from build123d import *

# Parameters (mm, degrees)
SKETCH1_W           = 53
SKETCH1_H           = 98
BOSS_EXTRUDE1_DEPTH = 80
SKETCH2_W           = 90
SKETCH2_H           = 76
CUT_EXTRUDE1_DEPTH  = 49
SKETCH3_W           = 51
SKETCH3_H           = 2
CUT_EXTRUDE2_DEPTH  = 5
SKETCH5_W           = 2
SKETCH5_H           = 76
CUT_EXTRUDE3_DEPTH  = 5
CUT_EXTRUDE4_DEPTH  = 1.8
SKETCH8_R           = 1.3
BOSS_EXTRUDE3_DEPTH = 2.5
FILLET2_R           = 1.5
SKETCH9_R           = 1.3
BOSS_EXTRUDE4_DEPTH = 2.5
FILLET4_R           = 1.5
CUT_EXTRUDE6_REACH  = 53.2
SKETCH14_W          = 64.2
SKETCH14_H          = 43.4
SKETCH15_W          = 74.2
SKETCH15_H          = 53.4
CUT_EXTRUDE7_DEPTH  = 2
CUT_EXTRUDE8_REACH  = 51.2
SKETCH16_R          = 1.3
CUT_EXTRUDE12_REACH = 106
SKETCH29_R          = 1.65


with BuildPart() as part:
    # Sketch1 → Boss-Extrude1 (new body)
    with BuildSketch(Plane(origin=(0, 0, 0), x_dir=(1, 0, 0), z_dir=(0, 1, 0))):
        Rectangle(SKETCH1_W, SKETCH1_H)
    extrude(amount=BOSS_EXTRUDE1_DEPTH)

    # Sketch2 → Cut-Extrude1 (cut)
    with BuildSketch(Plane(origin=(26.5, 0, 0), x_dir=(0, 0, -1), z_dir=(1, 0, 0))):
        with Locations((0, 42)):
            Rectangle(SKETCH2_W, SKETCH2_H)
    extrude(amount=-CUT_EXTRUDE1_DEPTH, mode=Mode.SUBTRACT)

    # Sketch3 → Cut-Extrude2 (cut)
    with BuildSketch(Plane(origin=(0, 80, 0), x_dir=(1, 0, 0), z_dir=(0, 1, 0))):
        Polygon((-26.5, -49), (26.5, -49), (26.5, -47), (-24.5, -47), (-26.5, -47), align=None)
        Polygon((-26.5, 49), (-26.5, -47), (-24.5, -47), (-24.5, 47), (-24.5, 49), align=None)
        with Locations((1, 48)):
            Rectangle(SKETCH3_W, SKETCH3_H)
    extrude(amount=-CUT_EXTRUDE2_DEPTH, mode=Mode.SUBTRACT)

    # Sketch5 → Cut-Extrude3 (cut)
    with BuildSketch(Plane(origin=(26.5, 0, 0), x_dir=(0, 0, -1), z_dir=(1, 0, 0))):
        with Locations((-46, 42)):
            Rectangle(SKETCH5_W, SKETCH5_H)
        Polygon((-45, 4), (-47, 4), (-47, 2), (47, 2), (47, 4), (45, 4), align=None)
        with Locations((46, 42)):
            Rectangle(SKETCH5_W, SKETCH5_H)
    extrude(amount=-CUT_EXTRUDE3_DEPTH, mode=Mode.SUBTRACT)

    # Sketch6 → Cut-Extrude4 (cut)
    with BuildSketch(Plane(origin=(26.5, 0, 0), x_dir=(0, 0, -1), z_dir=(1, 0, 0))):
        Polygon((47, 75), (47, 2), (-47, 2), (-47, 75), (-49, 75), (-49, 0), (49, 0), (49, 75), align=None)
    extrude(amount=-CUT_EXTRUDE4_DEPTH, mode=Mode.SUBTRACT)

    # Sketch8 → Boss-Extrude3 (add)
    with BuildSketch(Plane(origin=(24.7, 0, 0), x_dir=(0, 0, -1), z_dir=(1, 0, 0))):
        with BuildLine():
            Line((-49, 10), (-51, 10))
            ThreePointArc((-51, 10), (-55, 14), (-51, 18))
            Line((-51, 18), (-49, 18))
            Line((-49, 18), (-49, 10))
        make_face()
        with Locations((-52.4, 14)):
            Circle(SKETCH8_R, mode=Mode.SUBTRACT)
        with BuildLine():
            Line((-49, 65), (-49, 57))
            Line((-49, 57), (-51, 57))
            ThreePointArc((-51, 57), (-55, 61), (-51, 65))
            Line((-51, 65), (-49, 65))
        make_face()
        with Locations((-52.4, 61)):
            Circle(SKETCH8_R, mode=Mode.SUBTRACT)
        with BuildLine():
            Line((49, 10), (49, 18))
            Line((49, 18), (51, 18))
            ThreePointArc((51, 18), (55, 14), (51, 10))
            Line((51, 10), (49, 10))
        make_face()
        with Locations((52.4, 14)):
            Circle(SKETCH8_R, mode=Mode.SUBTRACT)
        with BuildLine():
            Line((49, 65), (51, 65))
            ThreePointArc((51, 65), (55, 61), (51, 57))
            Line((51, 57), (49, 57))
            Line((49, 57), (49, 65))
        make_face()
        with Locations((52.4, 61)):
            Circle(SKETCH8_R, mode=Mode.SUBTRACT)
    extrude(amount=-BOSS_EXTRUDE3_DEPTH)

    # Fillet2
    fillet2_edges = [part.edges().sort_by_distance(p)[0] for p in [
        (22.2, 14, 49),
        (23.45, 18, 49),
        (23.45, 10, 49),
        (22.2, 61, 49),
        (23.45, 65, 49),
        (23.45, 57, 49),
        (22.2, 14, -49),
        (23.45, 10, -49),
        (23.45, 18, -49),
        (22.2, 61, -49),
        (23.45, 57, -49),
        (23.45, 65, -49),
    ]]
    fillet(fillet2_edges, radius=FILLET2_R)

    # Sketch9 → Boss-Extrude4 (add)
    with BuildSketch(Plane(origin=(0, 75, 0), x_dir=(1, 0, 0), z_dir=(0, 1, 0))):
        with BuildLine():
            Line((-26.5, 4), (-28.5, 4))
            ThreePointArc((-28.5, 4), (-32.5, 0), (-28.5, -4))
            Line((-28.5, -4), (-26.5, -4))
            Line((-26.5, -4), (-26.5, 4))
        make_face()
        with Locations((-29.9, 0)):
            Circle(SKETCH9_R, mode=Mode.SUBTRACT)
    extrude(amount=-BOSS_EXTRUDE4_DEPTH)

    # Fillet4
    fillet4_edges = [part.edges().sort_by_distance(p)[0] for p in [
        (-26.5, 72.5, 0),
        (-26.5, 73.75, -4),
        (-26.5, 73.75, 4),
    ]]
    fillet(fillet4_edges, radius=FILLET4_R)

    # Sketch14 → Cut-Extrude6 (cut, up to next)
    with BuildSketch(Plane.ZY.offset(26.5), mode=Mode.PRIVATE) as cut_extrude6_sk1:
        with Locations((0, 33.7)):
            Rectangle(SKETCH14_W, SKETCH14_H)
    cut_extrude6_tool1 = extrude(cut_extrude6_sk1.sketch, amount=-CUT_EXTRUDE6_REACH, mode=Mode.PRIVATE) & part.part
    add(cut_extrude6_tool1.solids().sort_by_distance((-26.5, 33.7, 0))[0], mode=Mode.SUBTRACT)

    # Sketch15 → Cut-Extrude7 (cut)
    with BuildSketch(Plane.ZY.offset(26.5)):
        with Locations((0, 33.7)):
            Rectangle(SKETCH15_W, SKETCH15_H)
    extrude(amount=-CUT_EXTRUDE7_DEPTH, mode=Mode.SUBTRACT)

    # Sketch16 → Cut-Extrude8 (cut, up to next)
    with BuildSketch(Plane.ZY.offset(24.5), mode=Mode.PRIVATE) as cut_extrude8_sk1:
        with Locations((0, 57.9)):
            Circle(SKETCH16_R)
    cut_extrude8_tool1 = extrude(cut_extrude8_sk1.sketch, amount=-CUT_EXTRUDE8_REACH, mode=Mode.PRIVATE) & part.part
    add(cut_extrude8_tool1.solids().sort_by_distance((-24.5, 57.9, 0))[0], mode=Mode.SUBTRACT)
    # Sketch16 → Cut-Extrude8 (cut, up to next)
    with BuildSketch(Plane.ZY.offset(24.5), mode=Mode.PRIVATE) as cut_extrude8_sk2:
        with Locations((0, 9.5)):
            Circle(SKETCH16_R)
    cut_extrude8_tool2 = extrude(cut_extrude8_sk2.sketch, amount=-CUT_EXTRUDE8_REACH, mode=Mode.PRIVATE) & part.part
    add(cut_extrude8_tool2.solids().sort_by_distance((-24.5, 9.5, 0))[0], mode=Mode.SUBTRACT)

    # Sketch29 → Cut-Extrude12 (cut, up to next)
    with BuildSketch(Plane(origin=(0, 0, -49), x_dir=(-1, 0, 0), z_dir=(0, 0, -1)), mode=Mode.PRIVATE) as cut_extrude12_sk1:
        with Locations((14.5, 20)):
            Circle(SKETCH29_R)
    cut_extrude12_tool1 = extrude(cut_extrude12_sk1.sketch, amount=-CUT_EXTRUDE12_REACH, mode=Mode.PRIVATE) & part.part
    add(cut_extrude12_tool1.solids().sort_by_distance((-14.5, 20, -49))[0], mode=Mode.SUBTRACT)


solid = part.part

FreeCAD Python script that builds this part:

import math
import FreeCAD as App
import Part
import Sketcher
from FreeCAD import Vector
Q = App.Units.Quantity


def edges_at(feature, points):
    """Names of the edges that pass closest to the given points."""
    edges = feature.Shape.Edges
    near = lambda p: min(range(len(edges)), key=lambda i: edges[i].distToShape(Part.Vertex(*p))[0])
    return sorted({f"Edge{near(p) + 1}" for p in points})

doc = App.newDocument("Part")
params = doc.addObject("Spreadsheet::Sheet", "Params")
for row, (alias, value) in enumerate([
    ("sketch1_width", "53 mm"),
    ("sketch1_height", "98 mm"),
    ("pad1_length", "80 mm"),
    ("sketch2_width", "76 mm"),
    ("sketch2_height", "90 mm"),
    ("pocket1_length", "49 mm"),
    ("sketch3_width", "53 mm"),
    ("sketch3_width2", "51 mm"),
    ("sketch3_height", "2 mm"),
    ("sketch3_height2", "94 mm"),
    ("pocket2_length", "5 mm"),
    ("sketch4_width", "78 mm"),
    ("sketch4_width2", "76 mm"),
    ("sketch4_height", "94 mm"),
    ("sketch4_height2", "2 mm"),
    ("pocket3_length", "5 mm"),
    ("sketch5_width", "73 mm"),
    ("sketch5_width2", "75 mm"),
    ("sketch5_height", "94 mm"),
    ("sketch5_height2", "2 mm"),
    ("pocket4_length", "1.8 mm"),
    ("sketch6_radius", "4 mm"),
    ("sketch6_diameter", "2.6 mm"),
    ("sketch6_height", "2 mm"),
    ("pad2_length", "2.5 mm"),
    ("fillet_radius", "1.5 mm"),
    ("sketch7_radius", "4 mm"),
    ("sketch7_diameter", "2.6 mm"),
    ("sketch7_width", "2 mm"),
    ("pad3_length", "2.5 mm"),
    ("fillet2_radius", "1.5 mm"),
    ("sketch8_width", "43.4 mm"),
    ("sketch8_height", "64.2 mm"),
    ("sketch9_width", "53.4 mm"),
    ("sketch9_height", "74.2 mm"),
    ("pocket6_length", "2 mm"),
    ("sketch10_diameter", "2.6 mm"),
    ("sketch11_diameter", "2.6 mm"),
    ("sketch12_diameter", "3.3 mm"),
], start=1):
    params.set(f"A{row}", alias)
    params.set(f"B{row}", "=" + value)
    params.setAlias(f"B{row}", alias)

body = doc.addObject("PartDesign::Body", "Body")

sketch1 = doc.addObject("Sketcher::SketchObject", "Sketch")
body.addObject(sketch1)
sketch1.AttachmentSupport = (doc.XZ_Plane, [""])
sketch1.MapMode = "FlatFace"
sketch1.addGeometry(Part.LineSegment(Vector(-26, -49, 0), Vector(-26, 49, 0)), False)
sketch1.addGeometry(Part.LineSegment(Vector(-26, 49, 0), Vector(26, 49, 0)), False)
sketch1.addGeometry(Part.LineSegment(Vector(26, 49, 0), Vector(26, -49, 0)), False)
sketch1.addGeometry(Part.LineSegment(Vector(26, -49, 0), Vector(-26, -49, 0)), False)
sketch1.addConstraint(Sketcher.Constraint("Coincident", 0, 2, 1, 1))
sketch1.addConstraint(Sketcher.Constraint("Coincident", 1, 2, 2, 1))
sketch1.addConstraint(Sketcher.Constraint("Coincident", 2, 2, 3, 1))
sketch1.addConstraint(Sketcher.Constraint("Coincident", 3, 2, 0, 1))
sketch1.addConstraint(Sketcher.Constraint("Vertical", 0))
sketch1.addConstraint(Sketcher.Constraint("Horizontal", 1))
sketch1.addConstraint(Sketcher.Constraint("Vertical", 2))
sketch1.addConstraint(Sketcher.Constraint("Horizontal", 3))
sketch1.addConstraint(Sketcher.Constraint("Symmetric", 0, 2, 2, 2, -1, 1))
sketch1.addConstraint(Sketcher.Constraint("DistanceX", 1, 1, 1, 2, Q("53 mm")))
sketch1.addConstraint(Sketcher.Constraint("DistanceY", 0, 1, 0, 2, Q("98 mm")))
sketch1.setExpression("Constraints[9]", "Params.sketch1_width")
sketch1.setExpression("Constraints[10]", "Params.sketch1_height")
pad1 = doc.addObject("PartDesign::Pad", "Pad")
body.addObject(pad1)
pad1.Profile = sketch1
pad1.setExpression("Length", "Params.pad1_length")
pad1.Reversed = True

sketch2 = doc.addObject("Sketcher::SketchObject", "Sketch001")
body.addObject(sketch2)
sketch2.AttachmentSupport = (doc.YZ_Plane, [""])
sketch2.MapMode = "FlatFace"
sketch2.AttachmentOffset = App.Placement(Vector(0, 0, 26.5), App.Rotation())
sketch2.addGeometry(Part.LineSegment(Vector(80, 45, 0), Vector(4, 45, 0)), False)
sketch2.addGeometry(Part.LineSegment(Vector(4, 45, 0), Vector(4, -45, 0)), False)
sketch2.addGeometry(Part.LineSegment(Vector(4, -45, 0), Vector(80, -45, 0)), False)
sketch2.addGeometry(Part.LineSegment(Vector(80, -45, 0), Vector(80, 45, 0)), False)
sketch2.addConstraint(Sketcher.Constraint("Coincident", 0, 2, 1, 1))
sketch2.addConstraint(Sketcher.Constraint("Coincident", 1, 2, 2, 1))
sketch2.addConstraint(Sketcher.Constraint("Coincident", 2, 2, 3, 1))
sketch2.addConstraint(Sketcher.Constraint("Coincident", 3, 2, 0, 1))
sketch2.addConstraint(Sketcher.Constraint("Horizontal", 0))
sketch2.addConstraint(Sketcher.Constraint("Vertical", 1))
sketch2.addConstraint(Sketcher.Constraint("Horizontal", 2))
sketch2.addConstraint(Sketcher.Constraint("Vertical", 3))
sketch2.addConstraint(Sketcher.Constraint("DistanceX", 0, 2, 0, 1, Q("76 mm")))
sketch2.addConstraint(Sketcher.Constraint("DistanceY", 1, 2, 1, 1, Q("90 mm")))
sketch2.addConstraint(Sketcher.Constraint("DistanceX", -1, 1, 0, 2, Q("4 mm")))
sketch2.addConstraint(Sketcher.Constraint("DistanceY", -1, 1, 0, 2, Q("45 mm")))
sketch2.setExpression("Constraints[8]", "Params.sketch2_width")
sketch2.setExpression("Constraints[9]", "Params.sketch2_height")
pocket1 = doc.addObject("PartDesign::Pocket", "Pocket")
body.addObject(pocket1)
pocket1.Profile = sketch2
pocket1.setExpression("Length", "Params.pocket1_length")

sketch3 = doc.addObject("Sketcher::SketchObject", "Sketch002")
body.addObject(sketch3)
sketch3.AttachmentSupport = (doc.XZ_Plane, [""])
sketch3.MapMode = "FlatFace"
sketch3.AttachmentOffset = App.Placement(Vector(0, 0, -80), App.Rotation())
sketch3.addGeometry(Part.LineSegment(Vector(-26.5, 49, 0), Vector(26.5, 49, 0)), False)
sketch3.addGeometry(Part.LineSegment(Vector(26.5, 49, 0), Vector(26.5, 47, 0)), False)
sketch3.addGeometry(Part.LineSegment(Vector(26.5, 47, 0), Vector(-24.5, 47, 0)), False)
sketch3.addGeometry(Part.LineSegment(Vector(-24.5, 47, 0), Vector(-24.5, -47, 0)), False)
sketch3.addGeometry(Part.LineSegment(Vector(-24.5, -47, 0), Vector(26.5, -47, 0)), False)
sketch3.addGeometry(Part.LineSegment(Vector(26.5, -47, 0), Vector(26.5, -49, 0)), False)
sketch3.addGeometry(Part.LineSegment(Vector(26.5, -49, 0), Vector(-26.5, -49, 0)), False)
sketch3.addGeometry(Part.LineSegment(Vector(-26.5, -49, 0), Vector(-26.5, 49, 0)), False)
sketch3.addConstraint(Sketcher.Constraint("Coincident", 0, 2, 1, 1))
sketch3.addConstraint(Sketcher.Constraint("Coincident", 1, 2, 2, 1))
sketch3.addConstraint(Sketcher.Constraint("Coincident", 2, 2, 3, 1))
sketch3.addConstraint(Sketcher.Constraint("Coincident", 3, 2, 4, 1))
sketch3.addConstraint(Sketcher.Constraint("Coincident", 4, 2, 5, 1))
sketch3.addConstraint(Sketcher.Constraint("Coincident", 5, 2, 6, 1))
sketch3.addConstraint(Sketcher.Constraint("Coincident", 6, 2, 7, 1))
sketch3.addConstraint(Sketcher.Constraint("Coincident", 7, 2, 0, 1))
sketch3.addConstraint(Sketcher.Constraint("Horizontal", 0))
sketch3.addConstraint(Sketcher.Constraint("Vertical", 1))
sketch3.addConstraint(Sketcher.Constraint("Horizontal", 2))
sketch3.addConstraint(Sketcher.Constraint("Vertical", 3))
sketch3.addConstraint(Sketcher.Constraint("Horizontal", 4))
sketch3.addConstraint(Sketcher.Constraint("Vertical", 5))
sketch3.addConstraint(Sketcher.Constraint("Horizontal", 6))
sketch3.addConstraint(Sketcher.Constraint("Vertical", 7))
sketch3.addConstraint(Sketcher.Constraint("Symmetric", 0, 2, 6, 2, -1, 1))
sketch3.addConstraint(Sketcher.Constraint("Symmetric", 1, 2, 4, 2, -1))
sketch3.addConstraint(Sketcher.Constraint("DistanceX", 0, 1, 0, 2, Q("53 mm")))
sketch3.addConstraint(Sketcher.Constraint("DistanceX", 2, 2, 2, 1, Q("51 mm")))
sketch3.addConstraint(Sketcher.Constraint("DistanceY", 1, 2, 1, 1, Q("2 mm")))
sketch3.addConstraint(Sketcher.Constraint("DistanceY", 3, 2, 3, 1, Q("94 mm")))
sketch3.setExpression("Constraints[18]", "Params.sketch3_width")
sketch3.setExpression("Constraints[19]", "Params.sketch3_width2")
sketch3.setExpression("Constraints[20]", "Params.sketch3_height")
sketch3.setExpression("Constraints[21]", "Params.sketch3_height2")
pocket2 = doc.addObject("PartDesign::Pocket", "Pocket001")
body.addObject(pocket2)
pocket2.Profile = sketch3
pocket2.setExpression("Length", "Params.pocket2_length")
pocket2.Reversed = True

sketch4 = doc.addObject("Sketcher::SketchObject", "Sketch003")
body.addObject(sketch4)
sketch4.AttachmentSupport = (doc.YZ_Plane, [""])
sketch4.MapMode = "FlatFace"
sketch4.AttachmentOffset = App.Placement(Vector(0, 0, 26.5), App.Rotation())
sketch4.addGeometry(Part.LineSegment(Vector(80, 47, 0), Vector(2, 47, 0)), False)
sketch4.addGeometry(Part.LineSegment(Vector(2, 47, 0), Vector(2, -47, 0)), False)
sketch4.addGeometry(Part.LineSegment(Vector(2, -47, 0), Vector(80, -47, 0)), False)
sketch4.addGeometry(Part.LineSegment(Vector(80, -47, 0), Vector(80, -45, 0)), False)
sketch4.addGeometry(Part.LineSegment(Vector(80, -45, 0), Vector(4, -45, 0)), False)
sketch4.addGeometry(Part.LineSegment(Vector(4, -45, 0), Vector(4, 45, 0)), False)
sketch4.addGeometry(Part.LineSegment(Vector(4, 45, 0), Vector(80, 45, 0)), False)
sketch4.addGeometry(Part.LineSegment(Vector(80, 45, 0), Vector(80, 47, 0)), False)
sketch4.addConstraint(Sketcher.Constraint("Coincident", 0, 2, 1, 1))
sketch4.addConstraint(Sketcher.Constraint("Coincident", 1, 2, 2, 1))
sketch4.addConstraint(Sketcher.Constraint("Coincident", 2, 2, 3, 1))
sketch4.addConstraint(Sketcher.Constraint("Coincident", 3, 2, 4, 1))
sketch4.addConstraint(Sketcher.Constraint("Coincident", 4, 2, 5, 1))
sketch4.addConstraint(Sketcher.Constraint("Coincident", 5, 2, 6, 1))
sketch4.addConstraint(Sketcher.Constraint("Coincident", 6, 2, 7, 1))
sketch4.addConstraint(Sketcher.Constraint("Coincident", 7, 2, 0, 1))
sketch4.addConstraint(Sketcher.Constraint("Horizontal", 0))
sketch4.addConstraint(Sketcher.Constraint("Vertical", 1))
sketch4.addConstraint(Sketcher.Constraint("Horizontal", 2))
sketch4.addConstraint(Sketcher.Constraint("Vertical", 3))
sketch4.addConstraint(Sketcher.Constraint("Horizontal", 4))
sketch4.addConstraint(Sketcher.Constraint("Vertical", 5))
sketch4.addConstraint(Sketcher.Constraint("Horizontal", 6))
sketch4.addConstraint(Sketcher.Constraint("Vertical", 7))
sketch4.addConstraint(Sketcher.Constraint("Symmetric", 3, 2, 6, 2, -1))
sketch4.addConstraint(Sketcher.Constraint("Equal", 3, 7))
sketch4.addConstraint(Sketcher.Constraint("DistanceX", 0, 2, 0, 1, Q("78 mm")))
sketch4.addConstraint(Sketcher.Constraint("DistanceX", 4, 2, 4, 1, Q("76 mm")))
sketch4.addConstraint(Sketcher.Constraint("DistanceY", 1, 2, 1, 1, Q("94 mm")))
sketch4.addConstraint(Sketcher.Constraint("DistanceY", 3, 1, 3, 2, Q("2 mm")))
sketch4.addConstraint(Sketcher.Constraint("DistanceX", -1, 1, 0, 2, Q("2 mm")))
sketch4.setExpression("Constraints[18]", "Params.sketch4_width")
sketch4.setExpression("Constraints[19]", "Params.sketch4_width2")
sketch4.setExpression("Constraints[20]", "Params.sketch4_height")
sketch4.setExpression("Constraints[21]", "Params.sketch4_height2")
pocket3 = doc.addObject("PartDesign::Pocket", "Pocket002")
body.addObject(pocket3)
pocket3.Profile = sketch4
pocket3.setExpression("Length", "Params.pocket3_length")

sketch5 = doc.addObject("Sketcher::SketchObject", "Sketch004")
body.addObject(sketch5)
sketch5.AttachmentSupport = (doc.YZ_Plane, [""])
sketch5.MapMode = "FlatFace"
sketch5.AttachmentOffset = App.Placement(Vector(0, 0, 26.5), App.Rotation())
sketch5.addGeometry(Part.LineSegment(Vector(75, -47, 0), Vector(2, -47, 0)), False)
sketch5.addGeometry(Part.LineSegment(Vector(2, -47, 0), Vector(2, 47, 0)), False)
sketch5.addGeometry(Part.LineSegment(Vector(2, 47, 0), Vector(75, 47, 0)), False)
sketch5.addGeometry(Part.LineSegment(Vector(75, 47, 0), Vector(75, 49, 0)), False)
sketch5.addGeometry(Part.LineSegment(Vector(75, 49, 0), Vector(0, 49, 0)), False)
sketch5.addGeometry(Part.LineSegment(Vector(0, 49, 0), Vector(0, -49, 0)), False)
sketch5.addGeometry(Part.LineSegment(Vector(0, -49, 0), Vector(75, -49, 0)), False)
sketch5.addGeometry(Part.LineSegment(Vector(75, -49, 0), Vector(75, -47, 0)), False)
sketch5.addConstraint(Sketcher.Constraint("Coincident", 0, 2, 1, 1))
sketch5.addConstraint(Sketcher.Constraint("Coincident", 1, 2, 2, 1))
sketch5.addConstraint(Sketcher.Constraint("Coincident", 2, 2, 3, 1))
sketch5.addConstraint(Sketcher.Constraint("Coincident", 3, 2, 4, 1))
sketch5.addConstraint(Sketcher.Constraint("Coincident", 4, 2, 5, 1))
sketch5.addConstraint(Sketcher.Constraint("Coincident", 5, 2, 6, 1))
sketch5.addConstraint(Sketcher.Constraint("Coincident", 6, 2, 7, 1))
sketch5.addConstraint(Sketcher.Constraint("Coincident", 7, 2, 0, 1))
sketch5.addConstraint(Sketcher.Constraint("Horizontal", 0))
sketch5.addConstraint(Sketcher.Constraint("Vertical", 1))
sketch5.addConstraint(Sketcher.Constraint("Horizontal", 2))
sketch5.addConstraint(Sketcher.Constraint("Vertical", 3))
sketch5.addConstraint(Sketcher.Constraint("Horizontal", 4))
sketch5.addConstraint(Sketcher.Constraint("Vertical", 5))
sketch5.addConstraint(Sketcher.Constraint("Horizontal", 6))
sketch5.addConstraint(Sketcher.Constraint("Vertical", 7))
sketch5.addConstraint(Sketcher.Constraint("Symmetric", 4, 2, 5, 2, -1, 1))
sketch5.addConstraint(Sketcher.Constraint("Symmetric", 2, 2, 7, 2, -1))
sketch5.addConstraint(Sketcher.Constraint("DistanceX", 0, 2, 0, 1, Q("73 mm")))
sketch5.addConstraint(Sketcher.Constraint("DistanceX", 4, 2, 4, 1, Q("75 mm")))
sketch5.addConstraint(Sketcher.Constraint("DistanceY", 1, 1, 1, 2, Q("94 mm")))
sketch5.addConstraint(Sketcher.Constraint("DistanceY", 3, 1, 3, 2, Q("2 mm")))
sketch5.setExpression("Constraints[18]", "Params.sketch5_width")
sketch5.setExpression("Constraints[19]", "Params.sketch5_width2")
sketch5.setExpression("Constraints[20]", "Params.sketch5_height")
sketch5.setExpression("Constraints[21]", "Params.sketch5_height2")
pocket4 = doc.addObject("PartDesign::Pocket", "Pocket003")
body.addObject(pocket4)
pocket4.Profile = sketch5
pocket4.setExpression("Length", "Params.pocket4_length")

sketch6 = doc.addObject("Sketcher::SketchObject", "Sketch005")
body.addObject(sketch6)
sketch6.AttachmentSupport = (doc.YZ_Plane, [""])
sketch6.MapMode = "FlatFace"
sketch6.AttachmentOffset = App.Placement(Vector(0, 0, 24.7), App.Rotation())
sketch6.addGeometry(Part.LineSegment(Vector(10, 51, 0), Vector(10, 49, 0)), False)
sketch6.addGeometry(Part.LineSegment(Vector(10, 49, 0), Vector(18, 49, 0)), False)
sketch6.addGeometry(Part.LineSegment(Vector(18, 49, 0), Vector(18, 51, 0)), False)
sketch6.addGeometry(Part.ArcOfCircle(Part.Circle(Vector(14, 51, 0), Vector(0, 0, 1), 4), math.radians(0), math.radians(180)), False)
sketch6.addGeometry(Part.Circle(Vector(14, 52.4, 0), Vector(0, 0, 1), 1.3), False)
sketch6.addGeometry(Part.LineSegment(Vector(57, 49, 0), Vector(65, 49, 0)), False)
sketch6.addGeometry(Part.LineSegment(Vector(65, 49, 0), Vector(65, 51, 0)), False)
sketch6.addGeometry(Part.ArcOfCircle(Part.Circle(Vector(61, 51, 0), Vector(0, 0, 1), 4), math.radians(0), math.radians(180)), False)
sketch6.addGeometry(Part.LineSegment(Vector(57, 51, 0), Vector(57, 49, 0)), False)
sketch6.addGeometry(Part.Circle(Vector(61, 52.4, 0), Vector(0, 0, 1), 1.3), False)
sketch6.addGeometry(Part.LineSegment(Vector(18, -49, 0), Vector(10, -49, 0)), False)
sketch6.addGeometry(Part.LineSegment(Vector(10, -49, 0), Vector(10, -51, 0)), False)
sketch6.addGeometry(Part.ArcOfCircle(Part.Circle(Vector(14, -51, 0), Vector(0, 0, 1), 4), math.radians(180), math.radians(360)), False)
sketch6.addGeometry(Part.LineSegment(Vector(18, -51, 0), Vector(18, -49, 0)), False)
sketch6.addGeometry(Part.Circle(Vector(14, -52.4, 0), Vector(0, 0, 1), 1.3), False)
sketch6.addGeometry(Part.LineSegment(Vector(65, -51, 0), Vector(65, -49, 0)), False)
sketch6.addGeometry(Part.LineSegment(Vector(65, -49, 0), Vector(57, -49, 0)), False)
sketch6.addGeometry(Part.LineSegment(Vector(57, -49, 0), Vector(57, -51, 0)), False)
sketch6.addGeometry(Part.ArcOfCircle(Part.Circle(Vector(61, -51, 0), Vector(0, 0, 1), 4), math.radians(180), math.radians(360)), False)
sketch6.addGeometry(Part.Circle(Vector(61, -52.4, 0), Vector(0, 0, 1), 1.3), False)
sketch6.addConstraint(Sketcher.Constraint("Coincident", 0, 2, 1, 1))
sketch6.addConstraint(Sketcher.Constraint("Coincident", 1, 2, 2, 1))
sketch6.addConstraint(Sketcher.Constraint("Tangent", 2, 2, 3, 1))
sketch6.addConstraint(Sketcher.Constraint("Tangent", 3, 2, 0, 1))
sketch6.addConstraint(Sketcher.Constraint("Coincident", 5, 2, 6, 1))
sketch6.addConstraint(Sketcher.Constraint("Tangent", 6, 2, 7, 1))
sketch6.addConstraint(Sketcher.Constraint("Tangent", 7, 2, 8, 1))
sketch6.addConstraint(Sketcher.Constraint("Coincident", 8, 2, 5, 1))
sketch6.addConstraint(Sketcher.Constraint("Coincident", 10, 2, 11, 1))
sketch6.addConstraint(Sketcher.Constraint("Tangent", 11, 2, 12, 1))
sketch6.addConstraint(Sketcher.Constraint("Tangent", 12, 2, 13, 1))
sketch6.addConstraint(Sketcher.Constraint("Coincident", 13, 2, 10, 1))
sketch6.addConstraint(Sketcher.Constraint("Coincident", 15, 2, 16, 1))
sketch6.addConstraint(Sketcher.Constraint("Coincident", 16, 2, 17, 1))
sketch6.addConstraint(Sketcher.Constraint("Tangent", 17, 2, 18, 1))
sketch6.addConstraint(Sketcher.Constraint("Tangent", 18, 2, 15, 1))
sketch6.addConstraint(Sketcher.Constraint("Vertical", 0))
sketch6.addConstraint(Sketcher.Constraint("Horizontal", 1))
sketch6.addConstraint(Sketcher.Constraint("Vertical", 2))
sketch6.addConstraint(Sketcher.Constraint("Horizontal", 5))
sketch6.addConstraint(Sketcher.Constraint("Vertical", 6))
sketch6.addConstraint(Sketcher.Constraint("Vertical", 8))
sketch6.addConstraint(Sketcher.Constraint("Horizontal", 10))
sketch6.addConstraint(Sketcher.Constraint("Vertical", 11))
sketch6.addConstraint(Sketcher.Constraint("Vertical", 13))
sketch6.addConstraint(Sketcher.Constraint("Vertical", 15))
sketch6.addConstraint(Sketcher.Constraint("Horizontal", 16))
sketch6.addConstraint(Sketcher.Constraint("Vertical", 17))
sketch6.addConstraint(Sketcher.Constraint("Equal", 3, 7))
sketch6.addConstraint(Sketcher.Constraint("Equal", 4, 9))
sketch6.addConstraint(Sketcher.Constraint("Equal", 7, 12))
sketch6.addConstraint(Sketcher.Constraint("Equal", 9, 14))
sketch6.addConstraint(Sketcher.Constraint("Equal", 12, 18))
sketch6.addConstraint(Sketcher.Constraint("Equal", 14, 19))
sketch6.addConstraint(Sketcher.Constraint("Symmetric", 3, 3, 12, 3, -1))
sketch6.addConstraint(Sketcher.Constraint("Symmetric", 4, 3, 14, 3, -1))
sketch6.addConstraint(Sketcher.Constraint("Symmetric", 7, 3, 18, 3, -1))
sketch6.addConstraint(Sketcher.Constraint("Symmetric", 9, 3, 19, 3, -1))
sketch6.addConstraint(Sketcher.Constraint("Horizontal", 3, 3, 7, 3))
sketch6.addConstraint(Sketcher.Constraint("Horizontal", 4, 3, 9, 3))
sketch6.addConstraint(Sketcher.Constraint("Horizontal", 1, 2, 5, 2))
sketch6.addConstraint(Sketcher.Constraint("Horizontal", 13, 2, 15, 2))
sketch6.addConstraint(Sketcher.Constraint("Vertical", 3, 3, 4, 3))
sketch6.addConstraint(Sketcher.Constraint("Vertical", 7, 3, 9, 3))
sketch6.addConstraint(Sketcher.Constraint("Equal", 8, 11))
sketch6.addConstraint(Sketcher.Constraint("Radius", 3, Q("4 mm")))
sketch6.addConstraint(Sketcher.Constraint("Diameter", 4, Q("2.6 mm")))
sketch6.addConstraint(Sketcher.Constraint("DistanceY", 0, 2, 0, 1, Q("2 mm")))
sketch6.addConstraint(Sketcher.Constraint("DistanceX", -1, 1, 3, 3, Q("14 mm")))
sketch6.addConstraint(Sketcher.Constraint("DistanceY", -1, 1, 3, 3, Q("51 mm")))
sketch6.addConstraint(Sketcher.Constraint("DistanceX", -1, 1, 7, 3, Q("61 mm")))
sketch6.addConstraint(Sketcher.Constraint("DistanceY", -1, 1, 4, 3, Q("52.4 mm")))
sketch6.setExpression("Constraints[45]", "Params.sketch6_radius")
sketch6.setExpression("Constraints[46]", "Params.sketch6_diameter")
sketch6.setExpression("Constraints[47]", "Params.sketch6_height")
pad2 = doc.addObject("PartDesign::Pad", "Pad001")
body.addObject(pad2)
pad2.Profile = sketch6
pad2.setExpression("Length", "Params.pad2_length")
pad2.Reversed = True
doc.recompute()

fillet = doc.addObject("PartDesign::Fillet", "Fillet")
body.addObject(fillet)
fillet.Base = (pad2, edges_at(pad2, [
    (22.2, 14, 49),
    (23.45, 18, 49),
    (23.45, 10, 49),
    (22.2, 61, 49),
    (23.45, 65, 49),
    (23.45, 57, 49),
    (22.2, 14, -49),
    (23.45, 10, -49),
    (23.45, 18, -49),
    (22.2, 61, -49),
    (23.45, 57, -49),
    (23.45, 65, -49),
]))
fillet.setExpression("Radius", "Params.fillet_radius")

sketch7 = doc.addObject("Sketcher::SketchObject", "Sketch006")
body.addObject(sketch7)
sketch7.AttachmentSupport = (doc.XZ_Plane, [""])
sketch7.MapMode = "FlatFace"
sketch7.AttachmentOffset = App.Placement(Vector(0, 0, -75), App.Rotation())
sketch7.addGeometry(Part.LineSegment(Vector(-26.5, -4, 0), Vector(-28.5, -4, 0)), False)
sketch7.addGeometry(Part.ArcOfCircle(Part.Circle(Vector(-28.5, 0, 0), Vector(0, 0, 1), 4), math.radians(90), math.radians(270)), False)
sketch7.addGeometry(Part.LineSegment(Vector(-28.5, 4, 0), Vector(-26.5, 4, 0)), False)
sketch7.addGeometry(Part.LineSegment(Vector(-26.5, 4, 0), Vector(-26.5, -4, 0)), False)
sketch7.addGeometry(Part.Circle(Vector(-29.9, 0, 0), Vector(0, 0, 1), 1.3), False)
sketch7.addConstraint(Sketcher.Constraint("Tangent", 0, 2, 1, 2))
sketch7.addConstraint(Sketcher.Constraint("Tangent", 1, 1, 2, 1))
sketch7.addConstraint(Sketcher.Constraint("Coincident", 2, 2, 3, 1))
sketch7.addConstraint(Sketcher.Constraint("Coincident", 3, 2, 0, 1))
sketch7.addConstraint(Sketcher.Constraint("Horizontal", 0))
sketch7.addConstraint(Sketcher.Constraint("Horizontal", 2))
sketch7.addConstraint(Sketcher.Constraint("Vertical", 3))
sketch7.addConstraint(Sketcher.Constraint("PointOnObject", 1, 3, -1))
sketch7.addConstraint(Sketcher.Constraint("PointOnObject", 4, 3, -1))
sketch7.addConstraint(Sketcher.Constraint("Radius", 1, Q("4 mm")))
sketch7.addConstraint(Sketcher.Constraint("Diameter", 4, Q("2.6 mm")))
sketch7.addConstraint(Sketcher.Constraint("DistanceX", 0, 2, 0, 1, Q("2 mm")))
sketch7.addConstraint(Sketcher.Constraint("DistanceX", 1, 3, -1, 1, Q("28.5 mm")))
sketch7.addConstraint(Sketcher.Constraint("DistanceX", 4, 3, -1, 1, Q("29.9 mm")))
sketch7.setExpression("Constraints[9]", "Params.sketch7_radius")
sketch7.setExpression("Constraints[10]", "Params.sketch7_diameter")
sketch7.setExpression("Constraints[11]", "Params.sketch7_width")
pad3 = doc.addObject("PartDesign::Pad", "Pad002")
body.addObject(pad3)
pad3.Profile = sketch7
pad3.setExpression("Length", "Params.pad3_length")
doc.recompute()

fillet2 = doc.addObject("PartDesign::Fillet", "Fillet001")
body.addObject(fillet2)
fillet2.Base = (pad3, edges_at(pad3, [(-26.5, 72.5, 0), (-26.5, 73.75, -4), (-26.5, 73.75, 4)]))
fillet2.setExpression("Radius", "Params.fillet2_radius")

sketch8 = doc.addObject("Sketcher::SketchObject", "Sketch007")
body.addObject(sketch8)
sketch8.AttachmentSupport = (doc.YZ_Plane, [""])
sketch8.MapMode = "FlatFace"
sketch8.AttachmentOffset = App.Placement(Vector(0, 0, -26.5), App.Rotation())
sketch8.addGeometry(Part.LineSegment(Vector(55, -32, 0), Vector(12, -32, 0)), False)
sketch8.addGeometry(Part.LineSegment(Vector(12, -32, 0), Vector(12, 32, 0)), False)
sketch8.addGeometry(Part.LineSegment(Vector(12, 32, 0), Vector(55, 32, 0)), False)
sketch8.addGeometry(Part.LineSegment(Vector(55, 32, 0), Vector(55, -32, 0)), False)
sketch8.addConstraint(Sketcher.Constraint("Coincident", 0, 2, 1, 1))
sketch8.addConstraint(Sketcher.Constraint("Coincident", 1, 2, 2, 1))
sketch8.addConstraint(Sketcher.Constraint("Coincident", 2, 2, 3, 1))
sketch8.addConstraint(Sketcher.Constraint("Coincident", 3, 2, 0, 1))
sketch8.addConstraint(Sketcher.Constraint("Horizontal", 0))
sketch8.addConstraint(Sketcher.Constraint("Vertical", 1))
sketch8.addConstraint(Sketcher.Constraint("Horizontal", 2))
sketch8.addConstraint(Sketcher.Constraint("Vertical", 3))
sketch8.addConstraint(Sketcher.Constraint("DistanceX", 0, 2, 0, 1, Q("43.4 mm")))
sketch8.addConstraint(Sketcher.Constraint("DistanceY", 1, 1, 1, 2, Q("64.2 mm")))
sketch8.addConstraint(Sketcher.Constraint("DistanceX", -1, 1, 0, 2, Q("12 mm")))
sketch8.addConstraint(Sketcher.Constraint("DistanceY", 0, 2, -1, 1, Q("32.1 mm")))
sketch8.setExpression("Constraints[8]", "Params.sketch8_width")
sketch8.setExpression("Constraints[9]", "Params.sketch8_height")
pocket5 = doc.addObject("PartDesign::Pocket", "Pocket004")
body.addObject(pocket5)
pocket5.Profile = sketch8
pocket5.Type = "UpToFirst"
pocket5.Reversed = True

sketch9 = doc.addObject("Sketcher::SketchObject", "Sketch008")
body.addObject(sketch9)
sketch9.AttachmentSupport = (doc.YZ_Plane, [""])
sketch9.MapMode = "FlatFace"
sketch9.AttachmentOffset = App.Placement(Vector(0, 0, -26.5), App.Rotation())
sketch9.addGeometry(Part.LineSegment(Vector(60, -37, 0), Vector(7, -37, 0)), False)
sketch9.addGeometry(Part.LineSegment(Vector(7, -37, 0), Vector(7, 37, 0)), False)
sketch9.addGeometry(Part.LineSegment(Vector(7, 37, 0), Vector(60, 37, 0)), False)
sketch9.addGeometry(Part.LineSegment(Vector(60, 37, 0), Vector(60, -37, 0)), False)
sketch9.addConstraint(Sketcher.Constraint("Coincident", 0, 2, 1, 1))
sketch9.addConstraint(Sketcher.Constraint("Coincident", 1, 2, 2, 1))
sketch9.addConstraint(Sketcher.Constraint("Coincident", 2, 2, 3, 1))
sketch9.addConstraint(Sketcher.Constraint("Coincident", 3, 2, 0, 1))
sketch9.addConstraint(Sketcher.Constraint("Horizontal", 0))
sketch9.addConstraint(Sketcher.Constraint("Vertical", 1))
sketch9.addConstraint(Sketcher.Constraint("Horizontal", 2))
sketch9.addConstraint(Sketcher.Constraint("Vertical", 3))
sketch9.addConstraint(Sketcher.Constraint("DistanceX", 0, 2, 0, 1, Q("53.4 mm")))
sketch9.addConstraint(Sketcher.Constraint("DistanceY", 1, 1, 1, 2, Q("74.2 mm")))
sketch9.addConstraint(Sketcher.Constraint("DistanceX", -1, 1, 0, 2, Q("7 mm")))
sketch9.addConstraint(Sketcher.Constraint("DistanceY", 0, 2, -1, 1, Q("37.1 mm")))
sketch9.setExpression("Constraints[8]", "Params.sketch9_width")
sketch9.setExpression("Constraints[9]", "Params.sketch9_height")
pocket6 = doc.addObject("PartDesign::Pocket", "Pocket005")
body.addObject(pocket6)
pocket6.Profile = sketch9
pocket6.setExpression("Length", "Params.pocket6_length")
pocket6.Reversed = True

sketch10 = doc.addObject("Sketcher::SketchObject", "Sketch009")
body.addObject(sketch10)
sketch10.AttachmentSupport = (doc.YZ_Plane, [""])
sketch10.MapMode = "FlatFace"
sketch10.AttachmentOffset = App.Placement(Vector(0, 0, -24.5), App.Rotation())
sketch10.addGeometry(Part.Circle(Vector(57.9, 0, 0), Vector(0, 0, 1), 1.3), False)
sketch10.addConstraint(Sketcher.Constraint("PointOnObject", 0, 3, -1))
sketch10.addConstraint(Sketcher.Constraint("Diameter", 0, Q("2.6 mm")))
sketch10.addConstraint(Sketcher.Constraint("DistanceX", -1, 1, 0, 3, Q("57.9 mm")))
sketch10.setExpression("Constraints[1]", "Params.sketch10_diameter")
pocket7 = doc.addObject("PartDesign::Pocket", "Pocket006")
body.addObject(pocket7)
pocket7.Profile = sketch10
pocket7.Type = "UpToFirst"
pocket7.Reversed = True

sketch11 = doc.addObject("Sketcher::SketchObject", "Sketch010")
body.addObject(sketch11)
sketch11.AttachmentSupport = (doc.YZ_Plane, [""])
sketch11.MapMode = "FlatFace"
sketch11.AttachmentOffset = App.Placement(Vector(0, 0, -24.5), App.Rotation())
sketch11.addGeometry(Part.Circle(Vector(9.5, 0, 0), Vector(0, 0, 1), 1.3), False)
sketch11.addConstraint(Sketcher.Constraint("PointOnObject", 0, 3, -1))
sketch11.addConstraint(Sketcher.Constraint("Diameter", 0, Q("2.6 mm")))
sketch11.addConstraint(Sketcher.Constraint("DistanceX", -1, 1, 0, 3, Q("9.5 mm")))
sketch11.setExpression("Constraints[1]", "Params.sketch11_diameter")
pocket8 = doc.addObject("PartDesign::Pocket", "Pocket007")
body.addObject(pocket8)
pocket8.Profile = sketch11
pocket8.Type = "UpToFirst"
pocket8.Reversed = True

sketch12 = doc.addObject("Sketcher::SketchObject", "Sketch011")
body.addObject(sketch12)
sketch12.AttachmentSupport = (doc.XY_Plane, [""])
sketch12.MapMode = "FlatFace"
sketch12.AttachmentOffset = App.Placement(Vector(0, 0, -49), App.Rotation())
sketch12.addGeometry(Part.Circle(Vector(-14.5, 20, 0), Vector(0, 0, 1), 1.6), False)
sketch12.addConstraint(Sketcher.Constraint("Diameter", 0, Q("3.3 mm")))
sketch12.addConstraint(Sketcher.Constraint("DistanceY", -1, 1, 0, 3, Q("20 mm")))
sketch12.addConstraint(Sketcher.Constraint("DistanceX", 0, 3, -1, 1, Q("14.5 mm")))
sketch12.setExpression("Constraints[0]", "Params.sketch12_diameter")
pocket9 = doc.addObject("PartDesign::Pocket", "Pocket008")
body.addObject(pocket9)
pocket9.Profile = sketch12
pocket9.Type = "UpToFirst"
pocket9.Reversed = True

doc.recompute()
